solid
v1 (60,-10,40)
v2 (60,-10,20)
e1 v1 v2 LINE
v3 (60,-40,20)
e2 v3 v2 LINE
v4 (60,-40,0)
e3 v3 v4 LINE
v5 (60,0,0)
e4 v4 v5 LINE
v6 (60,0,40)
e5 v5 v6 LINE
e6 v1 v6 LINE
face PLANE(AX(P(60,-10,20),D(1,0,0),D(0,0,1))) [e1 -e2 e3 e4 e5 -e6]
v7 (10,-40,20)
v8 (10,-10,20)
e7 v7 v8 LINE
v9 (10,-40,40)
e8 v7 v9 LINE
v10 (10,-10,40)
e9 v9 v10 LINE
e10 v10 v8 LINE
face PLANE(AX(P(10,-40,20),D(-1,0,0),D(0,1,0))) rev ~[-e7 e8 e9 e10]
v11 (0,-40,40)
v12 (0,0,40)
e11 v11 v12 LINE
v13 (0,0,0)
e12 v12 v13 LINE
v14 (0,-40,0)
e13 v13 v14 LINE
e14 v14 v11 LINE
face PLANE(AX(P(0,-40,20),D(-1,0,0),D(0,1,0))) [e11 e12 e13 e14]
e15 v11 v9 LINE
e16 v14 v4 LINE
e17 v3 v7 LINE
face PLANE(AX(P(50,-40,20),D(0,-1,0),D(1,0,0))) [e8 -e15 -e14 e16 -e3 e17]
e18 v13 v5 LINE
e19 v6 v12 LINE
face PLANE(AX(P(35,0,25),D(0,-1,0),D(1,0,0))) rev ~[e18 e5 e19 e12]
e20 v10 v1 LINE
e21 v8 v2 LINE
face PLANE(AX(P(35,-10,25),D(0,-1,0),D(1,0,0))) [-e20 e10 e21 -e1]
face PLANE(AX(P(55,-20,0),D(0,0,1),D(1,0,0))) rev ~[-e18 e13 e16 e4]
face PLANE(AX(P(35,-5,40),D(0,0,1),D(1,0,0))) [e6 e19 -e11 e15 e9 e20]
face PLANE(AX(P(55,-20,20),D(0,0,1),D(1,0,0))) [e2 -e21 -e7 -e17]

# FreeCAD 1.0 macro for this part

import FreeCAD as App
import Part
import Sketcher
from FreeCAD import Vector
Q = App.Units.Quantity

doc = App.newDocument("Part")
body = doc.addObject("PartDesign::Body", "Body")

# Sketch on XZ plane
sketch1 = doc.addObject("Sketcher::SketchObject", "Sketch")
body.addObject(sketch1)
sketch1.AttachmentSupport = (doc.XZ_Plane, [""])
sketch1.MapMode = "FlatFace"
sketch1.addGeometry(Part.LineSegment(Vector(0, 40, 0), Vector(0, 0, 0)), False)
sketch1.addGeometry(Part.LineSegment(Vector(0, 0, 0), Vector(50, 0, 0)), False)
sketch1.addGeometry(Part.LineSegment(Vector(50, 0, 0), Vector(50, 40, 0)), False)
sketch1.addGeometry(Part.LineSegment(Vector(50, 40, 0), Vector(0, 40, 0)), False)
sketch1.addConstraint(Sketcher.Constraint("Coincident", 0, 2, 1, 1))
sketch1.addConstraint(Sketcher.Constraint("Coincident", 1, 2, 2, 1))
sketch1.addConstraint(Sketcher.Constraint("Coincident", 2, 2, 3, 1))
sketch1.addConstraint(Sketcher.Constraint("Coincident", 3, 2, 0, 1))
sketch1.addConstraint(Sketcher.Constraint("Vertical", 0))
sketch1.addConstraint(Sketcher.Constraint("Horizontal", 1))
sketch1.addConstraint(Sketcher.Constraint("Vertical", 2))
sketch1.addConstraint(Sketcher.Constraint("Horizontal", 3))
sketch1.addConstraint(Sketcher.Constraint("Coincident", 0, 2, -1, 1))
sketch1.addConstraint(Sketcher.Constraint("DistanceX", 1, 1, 1, 2, Q("50 mm")))
sketch1.addConstraint(Sketcher.Constraint("DistanceY", 0, 2, 0, 1, Q("40 mm")))
pad1 = doc.addObject("PartDesign::Pad", "Pad")
body.addObject(pad1)
pad1.Profile = sketch1
pad1.Length = 40

# Sketch on XY plane
sketch2 = doc.addObject("Sketcher::SketchObject", "Sketch001")
body.addObject(sketch2)
sketch2.AttachmentSupport = (doc.XY_Plane, [""])
sketch2.MapMode = "FlatFace"
sketch2.AttachmentOffset = App.Placement(Vector(0, 0, 40), App.Rotation())
sketch2.addGeometry(Part.LineSegment(Vector(0, 0, 0), Vector(0, -40, 0)), False)
sketch2.addGeometry(Part.LineSegment(Vector(0, -40, 0), Vector(50, -40, 0)), False)
sketch2.addGeometry(Part.LineSegment(Vector(50, -40, 0), Vector(50, 0, 0)), False)
sketch2.addGeometry(Part.LineSegment(Vector(50, 0, 0), Vector(0, 0, 0)), False)
sketch2.addConstraint(Sketcher.Constraint("Coincident", 0, 2, 1, 1))
sketch2.addConstraint(Sketcher.Constraint("Coincident", 1, 2, 2, 1))
sketch2.addConstraint(Sketcher.Constraint("Coincident", 2, 2, 3, 1))
sketch2.addConstraint(Sketcher.Constraint("Coincident", 3, 2, 0, 1))
sketch2.addConstraint(Sketcher.Constraint("Vertical", 0))
sketch2.addConstraint(Sketcher.Constraint("Horizontal", 1))
sketch2.addConstraint(Sketcher.Constraint("Vertical", 2))
sketch2.addConstraint(Sketcher.Constraint("Horizontal", 3))
sketch2.addConstraint(Sketcher.Constraint("Coincident", 3, 2, -1, 1))
sketch2.addConstraint(Sketcher.Constraint("DistanceX", 1, 1, 1, 2, Q("50 mm")))
sketch2.addConstraint(Sketcher.Constraint("DistanceY", 0, 2, 0, 1, Q("40 mm")))
pocket1 = doc.addObject("PartDesign::Pocket", "Pocket")
body.addObject(pocket1)
pocket1.Profile = sketch2
pocket1.Length = 20

# Sketch on XY plane
sketch3 = doc.addObject("Sketcher::SketchObject", "Sketch002")
body.addObject(sketch3)
sketch3.AttachmentSupport = (doc.XY_Plane, [""])
sketch3.MapMode = "FlatFace"
sketch3.AttachmentOffset = App.Placement(Vector(0, 0, 20), App.Rotation())
sketch3.addGeometry(Part.LineSegment(Vector(0, 0, 0), Vector(0, -40, 0)), False)
sketch3.addGeometry(Part.LineSegment(Vector(0, -40, 0), Vector(10, -40, 0)), False)
sketch3.addGeometry(Part.LineSegment(Vector(10, -40, 0), Vector(10, 0, 0)), False)
sketch3.addGeometry(Part.LineSegment(Vector(10, 0, 0), Vector(0, 0, 0)), False)
sketch3.addConstraint(Sketcher.Constraint("Coincident", 0, 2, 1, 1))
sketch3.addConstraint(Sketcher.Constraint("Coincident", 1, 2, 2, 1))
sketch3.addConstraint(Sketcher.Constraint("Coincident", 2, 2, 3, 1))
sketch3.addConstraint(Sketcher.Constraint("Coincident", 3, 2, 0, 1))
sketch3.addConstraint(Sketcher.Constraint("Vertical", 0))
sketch3.addConstraint(Sketcher.Constraint("Horizontal", 1))
sketch3.addConstraint(Sketcher.Constraint("Vertical", 2))
sketch3.addConstraint(Sketcher.Constraint("Horizontal", 3))
sketch3.addConstraint(Sketcher.Constraint("Coincident", 3, 2, -1, 1))
sketch3.addConstraint(Sketcher.Constraint("DistanceX", 1, 1, 1, 2, Q("10 mm")))
sketch3.addConstraint(Sketcher.Constraint("DistanceY", 0, 2, 0, 1, Q("40 mm")))
pad2 = doc.addObject("PartDesign::Pad", "Pad001")
body.addObject(pad2)
pad2.Profile = sketch3
pad2.Length = 20

# Sketch on XY plane
sketch4 = doc.addObject("Sketcher::SketchObject", "Sketch003")
body.addObject(sketch4)
sketch4.AttachmentSupport = (doc.XY_Plane, [""])
sketch4.MapMode = "FlatFace"
sketch4.AttachmentOffset = App.Placement(Vector(0, 0, 40), App.Rotation())
sketch4.addGeometry(Part.LineSegment(Vector(10, 0, 0), Vector(10, -10, 0)), False)
sketch4.addGeometry(Part.LineSegment(Vector(10, -10, 0), Vector(60, -10, 0)), False)
sketch4.addGeometry(Part.LineSegment(Vector(60, -10, 0), Vector(60, 0, 0)), False)
sketch4.addGeometry(Part.LineSegment(Vector(60, 0, 0), Vector(10, 0, 0)), False)
sketch4.addConstraint(Sketcher.Constraint("Coincident", 0, 2, 1, 1))
sketch4.addConstraint(Sketcher.Constraint("Coincident", 1, 2, 2, 1))
sketch4.addConstraint(Sketcher.Constraint("Coincident", 2, 2, 3, 1))
sketch4.addConstraint(Sketcher.Constraint("Coincident", 3, 2, 0, 1))
sketch4.addConstraint(Sketcher.Constraint("Vertical", 0))
sketch4.addConstraint(Sketcher.Constraint("Horizontal", 1))
sketch4.addConstraint(Sketcher.Constraint("Vertical", 2))
sketch4.addConstraint(Sketcher.Constraint("Horizontal", 3))
sketch4.addConstraint(Sketcher.Constraint("PointOnObject", 2, 2, -1))
sketch4.addConstraint(Sketcher.Constraint("DistanceX", 1, 1, 1, 2, Q("50 mm")))
sketch4.addConstraint(Sketcher.Constraint("DistanceY", 0, 2, 0, 1, Q("10 mm")))
sketch4.addConstraint(Sketcher.Constraint("DistanceX", -1, 1, 0, 2, Q("10 mm")))
pad3 = doc.addObject("PartDesign::Pad", "Pad002")
body.addObject(pad3)
pad3.Profile = sketch4
pad3.Length = 10
pad3.Reversed = True

# Sketch on XY plane
sketch5 = doc.addObject("Sketcher::SketchObject", "Sketch004")
body.addObject(sketch5)
sketch5.AttachmentSupport = (doc.XY_Plane, [""])
sketch5.MapMode = "FlatFace"
sketch5.AttachmentOffset = App.Placement(Vector(0, 0, 20), App.Rotation())
sketch5.addGeometry(Part.LineSegment(Vector(50, 0, 0), Vector(50, -40, 0)), False)
sketch5.addGeometry(Part.LineSegment(Vector(50, -40, 0), Vector(60, -40, 0)), False)
sketch5.addGeometry(Part.LineSegment(Vector(60, -40, 0), Vector(60, 0, 0)), False)
sketch5.addGeometry(Part.LineSegment(Vector(60, 0, 0), Vector(50, 0, 0)), False)
sketch5.addConstraint(Sketcher.Constraint("Coincident", 0, 2, 1, 1))
sketch5.addConstraint(Sketcher.Constraint("Coincident", 1, 2, 2, 1))
sketch5.addConstraint(Sketcher.Constraint("Coincident", 2, 2, 3, 1))
sketch5.addConstraint(Sketcher.Constraint("Coincident", 3, 2, 0, 1))
sketch5.addConstraint(Sketcher.Constraint("Vertical", 0))
sketch5.addConstraint(Sketcher.Constraint("Horizontal", 1))
sketch5.addConstraint(Sketcher.Constraint("Vertical", 2))
sketch5.addConstraint(Sketcher.Constraint("Horizontal", 3))
sketch5.addConstraint(Sketcher.Constraint("PointOnObject", 2, 2, -1))
sketch5.addConstraint(Sketcher.Constraint("DistanceX", 1, 1, 1, 2, Q("10 mm")))
sketch5.addConstraint(Sketcher.Constraint("DistanceY", 0, 2, 0, 1, Q("40 mm")))
sketch5.addConstraint(Sketcher.Constraint("DistanceX", -1, 1, 0, 2, Q("50 mm")))
pad4 = doc.addObject("PartDesign::Pad", "Pad003")
body.addObject(pad4)
pad4.Profile = sketch5
pad4.Length = 20
pad4.Reversed = True

# Sketch on XZ plane
sketch6 = doc.addObject("Sketcher::SketchObject", "Sketch005")
body.addObject(sketch6)
sketch6.AttachmentSupport = (doc.XZ_Plane, [""])
sketch6.MapMode = "FlatFace"
sketch6.AttachmentOffset = App.Placement(Vector(0, 0, 10), App.Rotation())
sketch6.addGeometry(Part.LineSegment(Vector(10, 30, 0), Vector(10, 20, 0)), False)
sketch6.addGeometry(Part.LineSegment(Vector(10, 20, 0), Vector(60, 20, 0)), False)
sketch6.addGeometry(Part.LineSegment(Vector(60, 20, 0), Vector(60, 30, 0)), False)
sketch6.addGeometry(Part.LineSegment(Vector(60, 30, 0), Vector(10, 30, 0)), False)
sketch6.addConstraint(Sketcher.Constraint("Coincident", 0, 2, 1, 1))
sketch6.addConstraint(Sketcher.Constraint("Coincident", 1, 2, 2, 1))
sketch6.addConstraint(Sketcher.Constraint("Coincident", 2, 2, 3, 1))
sketch6.addConstraint(Sketcher.Constraint("Coincident", 3, 2, 0, 1))
sketch6.addConstraint(Sketcher.Constraint("Vertical", 0))
sketch6.addConstraint(Sketcher.Constraint("Horizontal", 1))
sketch6.addConstraint(Sketcher.Constraint("Vertical", 2))
sketch6.addConstraint(Sketcher.Constraint("Horizontal", 3))
sketch6.addConstraint(Sketcher.Constraint("DistanceX", 1, 1, 1, 2, Q("50 mm")))
sketch6.addConstraint(Sketcher.Constraint("DistanceY", 0, 2, 0, 1, Q("10 mm")))
sketch6.addConstraint(Sketcher.Constraint("DistanceX", -1, 1, 0, 2, Q("10 mm")))
sketch6.addConstraint(Sketcher.Constraint("DistanceY", -1, 1, 0, 2, Q("20 mm")))
pad5 = doc.addObject("PartDesign::Pad", "Pad004")
body.addObject(pad5)
pad5.Profile = sketch6
pad5.Length = 10
pad5.Reversed = True

doc.recompute()
